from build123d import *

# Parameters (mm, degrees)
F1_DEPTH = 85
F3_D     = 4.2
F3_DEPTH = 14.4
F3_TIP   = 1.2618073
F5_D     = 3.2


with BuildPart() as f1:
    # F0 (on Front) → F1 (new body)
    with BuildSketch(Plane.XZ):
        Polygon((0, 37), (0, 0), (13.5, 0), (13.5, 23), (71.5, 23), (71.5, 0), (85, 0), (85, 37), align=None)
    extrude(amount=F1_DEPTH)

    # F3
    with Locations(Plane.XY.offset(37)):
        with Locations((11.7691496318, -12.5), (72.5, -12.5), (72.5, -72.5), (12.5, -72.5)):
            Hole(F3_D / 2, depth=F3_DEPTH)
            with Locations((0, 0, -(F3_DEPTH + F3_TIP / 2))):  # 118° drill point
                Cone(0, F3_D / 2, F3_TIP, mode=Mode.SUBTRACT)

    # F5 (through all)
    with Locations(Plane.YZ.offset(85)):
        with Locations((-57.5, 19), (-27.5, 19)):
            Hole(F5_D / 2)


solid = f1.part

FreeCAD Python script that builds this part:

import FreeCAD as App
import Part
import Sketcher

V = App.Vector

doc = App.newDocument("Part")
body = doc.addObject("PartDesign::Body", "Body")

# Sketch on XZ plane
sketch1 = body.newObject("Sketcher::SketchObject", "Sketch")
sketch1.AttachmentSupport = (doc.getObject("XZ_Plane"), [""])
sketch1.MapMode = "FlatFace"
sketch1.addGeometry(Part.LineSegment(V(0, 37, 0), V(0, 0, 0)), False)
sketch1.addGeometry(Part.LineSegment(V(0, 0, 0), V(14, 0, 0)), False)
sketch1.addGeometry(Part.LineSegment(V(14, 0, 0), V(14, 23, 0)), False)
sketch1.addGeometry(Part.LineSegment(V(14, 23, 0), V(72, 23, 0)), False)
sketch1.addGeometry(Part.LineSegment(V(72, 23, 0), V(72, 0, 0)), False)
sketch1.addGeometry(Part.LineSegment(V(72, 0, 0), V(85, 0, 0)), False)
sketch1.addGeometry(Part.LineSegment(V(85, 0, 0), V(85, 37, 0)), False)
sketch1.addGeometry(Part.LineSegment(V(85, 37, 0), V(0, 37, 0)), False)
sketch1.addConstraint(Sketcher.Constraint("Coincident", 0, 2, 1, 1))
sketch1.addConstraint(Sketcher.Constraint("Coincident", 1, 2, 2, 1))
sketch1.addConstraint(Sketcher.Constraint("Coincident", 2, 2, 3, 1))
sketch1.addConstraint(Sketcher.Constraint("Coincident", 3, 2, 4, 1))
sketch1.addConstraint(Sketcher.Constraint("Coincident", 4, 2, 5, 1))
sketch1.addConstraint(Sketcher.Constraint("Coincident", 5, 2, 6, 1))
sketch1.addConstraint(Sketcher.Constraint("Coincident", 6, 2, 7, 1))
sketch1.addConstraint(Sketcher.Constraint("Coincident", 7, 2, 0, 1))
sketch1.addConstraint(Sketcher.Constraint("Vertical", 0))
sketch1.addConstraint(Sketcher.Constraint("Horizontal", 1))
sketch1.addConstraint(Sketcher.Constraint("Vertical", 2))
sketch1.addConstraint(Sketcher.Constraint("Horizontal", 3))
sketch1.addConstraint(Sketcher.Constraint("Vertical", 4))
sketch1.addConstraint(Sketcher.Constraint("Horizontal", 5))
sketch1.addConstraint(Sketcher.Constraint("Vertical", 6))
sketch1.addConstraint(Sketcher.Constraint("Horizontal", 7))
sketch1.addConstraint(Sketcher.Constraint("Coincident", 0, 2, -1, 1))
sketch1.addConstraint(Sketcher.Constraint("PointOnObject", 4, 2, -1))
sketch1.addConstraint(Sketcher.Constraint("Equal", 1, 5))
sketch1.addConstraint(Sketcher.Constraint("DistanceX", 3, 1, 3, 2, 58.0))
sketch1.addConstraint(Sketcher.Constraint("DistanceX", 7, 2, 7, 1, 85.0))
sketch1.addConstraint(Sketcher.Constraint("DistanceY", 0, 2, 0, 1, 37.0))
sketch1.addConstraint(Sketcher.Constraint("DistanceY", 2, 1, 2, 2, 23.0))
pad1 = body.newObject("PartDesign::Pad", "Pad")
pad1.Profile = sketch1
pad1.Length = 85

# Sketch on XY plane
sketch2 = body.newObject("Sketcher::SketchObject", "Sketch001")
sketch2.AttachmentSupport = (doc.getObject("XY_Plane"), [""])
sketch2.MapMode = "FlatFace"
sketch2.AttachmentOffset = App.Placement(V(0, 0, 37), App.Rotation())
sketch2.addGeometry(Part.Circle(V(11.8, -12.5, 0), V(0, 0, 1), 2.1), False)
sketch2.addGeometry(Part.Circle(V(72.5, -12.5, 0), V(0, 0, 1), 2.1), False)
sketch2.addGeometry(Part.Circle(V(72.5, -72.5, 0), V(0, 0, 1), 2.1), False)
sketch2.addGeometry(Part.Circle(V(12.5, -72.5, 0), V(0, 0, 1), 2.1), False)
sketch2.addConstraint(Sketcher.Constraint("Equal", 0, 1))
sketch2.addConstraint(Sketcher.Constraint("Equal", 1, 2))
sketch2.addConstraint(Sketcher.Constraint("Equal", 2, 3))
sketch2.addConstraint(Sketcher.Constraint("Horizontal", 0, 3, 1, 3))
sketch2.addConstraint(Sketcher.Constraint("Horizontal", 2, 3, 3, 3))
sketch2.addConstraint(Sketcher.Constraint("Vertical", 1, 3, 2, 3))
sketch2.addConstraint(Sketcher.Constraint("Diameter", 0, 4.2))
sketch2.addConstraint(Sketcher.Constraint("DistanceY", 2, 3, 1, 3, 60.0))
sketch2.addConstraint(Sketcher.Constraint("DistanceX", 3, 3, 2, 3, 60.0))
sketch2.addConstraint(Sketcher.Constraint("DistanceY", 0, 3, -1, 1, 12.5))
sketch2.addConstraint(Sketcher.Constraint("DistanceX", -1, 1, 1, 3, 72.5))
sketch2.addConstraint(Sketcher.Constraint("DistanceX", -1, 1, 0, 3, 11.76915))
doc.recompute()
hole = body.newObject("PartDesign::Hole", "Hole")
hole.Profile = sketch2
hole.ThreadType = "None"
hole.Diameter = 4.2
hole.DepthType = "Dimension"
hole.Depth = 14.4
hole.DrillPoint = "Angled"
hole.DrillPointAngle = 118

# Sketch on YZ plane
sketch3 = body.newObject("Sketcher::SketchObject", "Sketch002")
sketch3.AttachmentSupport = (doc.getObject("YZ_Plane"), [""])
sketch3.MapMode = "FlatFace"
sketch3.AttachmentOffset = App.Placement(V(0, 0, 85), App.Rotation())
sketch3.addGeometry(Part.Circle(V(-57.5, 19, 0), V(0, 0, 1), 1.6), False)
sketch3.addGeometry(Part.Circle(V(-27.5, 19, 0), V(0, 0, 1), 1.6), False)
sketch3.addConstraint(Sketcher.Constraint("Equal", 0, 1))
sketch3.addConstraint(Sketcher.Constraint("Horizontal", 0, 3, 1, 3))
sketch3.addConstraint(Sketcher.Constraint("Diameter", 0, 3.2))
sketch3.addConstraint(Sketcher.Constraint("DistanceY", -1, 1, 0, 3, 19.0))
sketch3.addConstraint(Sketcher.Constraint("DistanceX", 0, 3, 1, 3, 30.0))
sketch3.addConstraint(Sketcher.Constraint("DistanceX", 0, 3, -1, 1, 57.5))
doc.recompute()
hole2 = body.newObject("PartDesign::Hole", "Hole001")
hole2.Profile = sketch3
hole2.ThreadType = "None"
hole2.Diameter = 3.2
hole2.DepthType = "ThroughAll"

doc.recompute()
